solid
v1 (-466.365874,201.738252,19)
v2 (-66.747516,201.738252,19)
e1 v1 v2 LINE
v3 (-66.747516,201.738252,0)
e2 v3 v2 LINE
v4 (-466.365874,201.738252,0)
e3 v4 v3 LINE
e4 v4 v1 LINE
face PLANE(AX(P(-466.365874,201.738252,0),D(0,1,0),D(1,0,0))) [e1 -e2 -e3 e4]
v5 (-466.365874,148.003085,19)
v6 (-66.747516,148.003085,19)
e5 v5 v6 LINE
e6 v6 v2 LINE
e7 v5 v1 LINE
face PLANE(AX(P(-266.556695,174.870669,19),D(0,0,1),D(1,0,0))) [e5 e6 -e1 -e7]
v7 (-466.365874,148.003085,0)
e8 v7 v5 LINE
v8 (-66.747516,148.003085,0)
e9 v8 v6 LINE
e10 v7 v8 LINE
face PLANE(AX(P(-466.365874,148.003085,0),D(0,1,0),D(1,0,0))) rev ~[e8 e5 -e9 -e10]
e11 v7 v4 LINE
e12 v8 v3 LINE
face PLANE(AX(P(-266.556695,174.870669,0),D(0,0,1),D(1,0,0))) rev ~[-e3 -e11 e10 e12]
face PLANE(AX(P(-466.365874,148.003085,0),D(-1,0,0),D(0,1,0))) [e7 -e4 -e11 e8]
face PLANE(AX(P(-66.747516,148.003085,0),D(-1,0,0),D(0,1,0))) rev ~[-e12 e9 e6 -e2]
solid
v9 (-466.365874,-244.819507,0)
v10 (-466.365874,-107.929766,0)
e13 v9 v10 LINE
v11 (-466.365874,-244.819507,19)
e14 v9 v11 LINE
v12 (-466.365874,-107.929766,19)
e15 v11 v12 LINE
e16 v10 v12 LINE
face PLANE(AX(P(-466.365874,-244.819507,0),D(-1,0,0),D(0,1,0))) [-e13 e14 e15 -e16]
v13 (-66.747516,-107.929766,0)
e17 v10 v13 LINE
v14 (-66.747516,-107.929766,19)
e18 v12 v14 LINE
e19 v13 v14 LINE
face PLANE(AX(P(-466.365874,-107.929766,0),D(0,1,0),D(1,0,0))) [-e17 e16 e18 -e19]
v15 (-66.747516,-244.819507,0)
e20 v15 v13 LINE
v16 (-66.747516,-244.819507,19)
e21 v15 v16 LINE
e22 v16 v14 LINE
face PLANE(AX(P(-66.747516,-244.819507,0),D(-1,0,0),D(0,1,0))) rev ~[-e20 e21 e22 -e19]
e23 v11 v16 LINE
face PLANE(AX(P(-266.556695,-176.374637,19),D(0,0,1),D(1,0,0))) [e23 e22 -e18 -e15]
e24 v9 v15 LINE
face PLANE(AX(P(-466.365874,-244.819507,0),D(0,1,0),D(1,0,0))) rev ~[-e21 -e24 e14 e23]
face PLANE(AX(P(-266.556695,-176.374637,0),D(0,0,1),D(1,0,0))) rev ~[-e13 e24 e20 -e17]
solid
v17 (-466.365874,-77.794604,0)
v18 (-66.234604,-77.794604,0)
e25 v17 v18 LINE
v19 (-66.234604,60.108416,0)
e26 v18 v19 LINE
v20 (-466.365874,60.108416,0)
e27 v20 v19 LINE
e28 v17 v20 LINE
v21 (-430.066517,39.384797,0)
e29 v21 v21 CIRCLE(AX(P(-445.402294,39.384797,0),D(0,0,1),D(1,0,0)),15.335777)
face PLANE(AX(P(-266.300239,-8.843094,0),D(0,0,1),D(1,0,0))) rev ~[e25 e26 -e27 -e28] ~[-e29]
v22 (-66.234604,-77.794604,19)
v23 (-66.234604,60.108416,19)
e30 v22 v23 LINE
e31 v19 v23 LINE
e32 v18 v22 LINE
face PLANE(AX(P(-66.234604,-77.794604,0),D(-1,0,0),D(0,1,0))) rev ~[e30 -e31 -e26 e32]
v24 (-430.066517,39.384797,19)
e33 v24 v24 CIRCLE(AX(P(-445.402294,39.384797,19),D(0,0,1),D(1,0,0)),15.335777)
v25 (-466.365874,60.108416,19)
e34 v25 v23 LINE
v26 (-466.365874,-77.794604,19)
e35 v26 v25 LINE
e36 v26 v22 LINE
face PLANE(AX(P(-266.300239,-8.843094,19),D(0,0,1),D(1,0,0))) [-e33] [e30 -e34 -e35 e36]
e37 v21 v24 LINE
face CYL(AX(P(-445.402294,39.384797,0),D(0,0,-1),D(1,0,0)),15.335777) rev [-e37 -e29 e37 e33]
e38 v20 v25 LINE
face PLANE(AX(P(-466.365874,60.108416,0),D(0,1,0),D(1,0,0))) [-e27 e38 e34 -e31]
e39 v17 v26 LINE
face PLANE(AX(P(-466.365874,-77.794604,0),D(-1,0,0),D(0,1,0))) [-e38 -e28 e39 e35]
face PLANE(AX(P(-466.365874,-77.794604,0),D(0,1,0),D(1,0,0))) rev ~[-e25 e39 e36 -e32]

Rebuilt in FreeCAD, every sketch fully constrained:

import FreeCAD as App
import Part
import Sketcher


def add_polygon(sketch, points):
    """Adds a closed chain of lines whose ends are joined by coincident constraints."""
    first, n = sketch.GeometryCount, len(points)
    for a, b in zip(points, points[1:] + points[:1]):
        sketch.addGeometry(Part.LineSegment(App.Vector(*a, 0), App.Vector(*b, 0)), False)
    for i in range(n):
        sketch.addConstraint(Sketcher.Constraint("Coincident", first + i, 2, first + (i + 1) % n, 1))

doc = App.newDocument("Part")
body = doc.addObject("PartDesign::Body", "Body")
body.AllowCompound = True

# Sketch on XY plane
sketch1 = body.newObject("Sketcher::SketchObject", "Sketch")
sketch1.AttachmentSupport = (doc.getObject("XY_Plane"), [""])
sketch1.MapMode = "FlatFace"
add_polygon(sketch1, [(-466.365874, -107.929766), (-466.365874, -244.819507), (-66.747516, -244.819507), (-66.747516, -107.929766)])  # lines 0-3
add_polygon(sketch1, [(-466.365874, 201.738252), (-466.365874, 148.003085), (-66.747516, 148.003085), (-66.747516, 201.738252)])  # lines 4-7
add_polygon(sketch1, [(-466.365874, 60.108416), (-466.365874, -77.794604), (-66.234604, -77.794604), (-66.234604, 60.108416)])  # lines 8-11
sketch1.addGeometry(Part.Circle(App.Vector(-445.402294, 39.384797, 0), App.Vector(0, 0, 1), 15.335777), False)  # 12
sketch1.addConstraint(Sketcher.Constraint("Vertical", 0))
sketch1.addConstraint(Sketcher.Constraint("Horizontal", 1))
sketch1.addConstraint(Sketcher.Constraint("Vertical", 2))
sketch1.addConstraint(Sketcher.Constraint("Horizontal", 3))
sketch1.addConstraint(Sketcher.Constraint("Vertical", 4))
sketch1.addConstraint(Sketcher.Constraint("Horizontal", 5))
sketch1.addConstraint(Sketcher.Constraint("Vertical", 6))
sketch1.addConstraint(Sketcher.Constraint("Horizontal", 7))
sketch1.addConstraint(Sketcher.Constraint("Vertical", 8))
sketch1.addConstraint(Sketcher.Constraint("Horizontal", 9))
sketch1.addConstraint(Sketcher.Constraint("Vertical", 10))
sketch1.addConstraint(Sketcher.Constraint("Horizontal", 11))
sketch1.addConstraint(Sketcher.Constraint("Vertical", 3, 2, 4, 2))
sketch1.addConstraint(Sketcher.Constraint("Vertical", 2, 2, 5, 2))
sketch1.addConstraint(Sketcher.Constraint("Vertical", 7, 2, 8, 2))
sketch1.addConstraint(Sketcher.Constraint("Diameter", 12, 30.671554))
sketch1.addConstraint(Sketcher.Constraint("DistanceX", 1, 1, 1, 2, 399.618358))
sketch1.addConstraint(Sketcher.Constraint("DistanceX", 9, 1, 9, 2, 400.13127))
sketch1.addConstraint(Sketcher.Constraint("DistanceY", 0, 2, 0, 1, 136.889741))
sketch1.addConstraint(Sketcher.Constraint("DistanceY", 8, 2, 8, 1, 137.90302))
sketch1.addConstraint(Sketcher.Constraint("DistanceY", 8, 2, 12, 3, 117.179401))
sketch1.addConstraint(Sketcher.Constraint("DistanceY", 4, 2, 4, 1, 53.735167))
sketch1.addConstraint(Sketcher.Constraint("DistanceX", 0, 2, 12, 3, 20.96358))
sketch1.addConstraint(Sketcher.Constraint("DistanceY", 12, 3, 4, 2, 108.618289))
sketch1.addConstraint(Sketcher.Constraint("DistanceY", 3, 2, 4, 2, 255.932852))
sketch1.addConstraint(Sketcher.Constraint("DistanceX", 12, 3, -1, 1, 445.402294))
sketch1.addConstraint(Sketcher.Constraint("DistanceY", -1, 1, 12, 3, 39.384797))
pad1 = body.newObject("PartDesign::Pad", "Pad")
pad1.Profile = sketch1
pad1.Length = 19

doc.recompute()
